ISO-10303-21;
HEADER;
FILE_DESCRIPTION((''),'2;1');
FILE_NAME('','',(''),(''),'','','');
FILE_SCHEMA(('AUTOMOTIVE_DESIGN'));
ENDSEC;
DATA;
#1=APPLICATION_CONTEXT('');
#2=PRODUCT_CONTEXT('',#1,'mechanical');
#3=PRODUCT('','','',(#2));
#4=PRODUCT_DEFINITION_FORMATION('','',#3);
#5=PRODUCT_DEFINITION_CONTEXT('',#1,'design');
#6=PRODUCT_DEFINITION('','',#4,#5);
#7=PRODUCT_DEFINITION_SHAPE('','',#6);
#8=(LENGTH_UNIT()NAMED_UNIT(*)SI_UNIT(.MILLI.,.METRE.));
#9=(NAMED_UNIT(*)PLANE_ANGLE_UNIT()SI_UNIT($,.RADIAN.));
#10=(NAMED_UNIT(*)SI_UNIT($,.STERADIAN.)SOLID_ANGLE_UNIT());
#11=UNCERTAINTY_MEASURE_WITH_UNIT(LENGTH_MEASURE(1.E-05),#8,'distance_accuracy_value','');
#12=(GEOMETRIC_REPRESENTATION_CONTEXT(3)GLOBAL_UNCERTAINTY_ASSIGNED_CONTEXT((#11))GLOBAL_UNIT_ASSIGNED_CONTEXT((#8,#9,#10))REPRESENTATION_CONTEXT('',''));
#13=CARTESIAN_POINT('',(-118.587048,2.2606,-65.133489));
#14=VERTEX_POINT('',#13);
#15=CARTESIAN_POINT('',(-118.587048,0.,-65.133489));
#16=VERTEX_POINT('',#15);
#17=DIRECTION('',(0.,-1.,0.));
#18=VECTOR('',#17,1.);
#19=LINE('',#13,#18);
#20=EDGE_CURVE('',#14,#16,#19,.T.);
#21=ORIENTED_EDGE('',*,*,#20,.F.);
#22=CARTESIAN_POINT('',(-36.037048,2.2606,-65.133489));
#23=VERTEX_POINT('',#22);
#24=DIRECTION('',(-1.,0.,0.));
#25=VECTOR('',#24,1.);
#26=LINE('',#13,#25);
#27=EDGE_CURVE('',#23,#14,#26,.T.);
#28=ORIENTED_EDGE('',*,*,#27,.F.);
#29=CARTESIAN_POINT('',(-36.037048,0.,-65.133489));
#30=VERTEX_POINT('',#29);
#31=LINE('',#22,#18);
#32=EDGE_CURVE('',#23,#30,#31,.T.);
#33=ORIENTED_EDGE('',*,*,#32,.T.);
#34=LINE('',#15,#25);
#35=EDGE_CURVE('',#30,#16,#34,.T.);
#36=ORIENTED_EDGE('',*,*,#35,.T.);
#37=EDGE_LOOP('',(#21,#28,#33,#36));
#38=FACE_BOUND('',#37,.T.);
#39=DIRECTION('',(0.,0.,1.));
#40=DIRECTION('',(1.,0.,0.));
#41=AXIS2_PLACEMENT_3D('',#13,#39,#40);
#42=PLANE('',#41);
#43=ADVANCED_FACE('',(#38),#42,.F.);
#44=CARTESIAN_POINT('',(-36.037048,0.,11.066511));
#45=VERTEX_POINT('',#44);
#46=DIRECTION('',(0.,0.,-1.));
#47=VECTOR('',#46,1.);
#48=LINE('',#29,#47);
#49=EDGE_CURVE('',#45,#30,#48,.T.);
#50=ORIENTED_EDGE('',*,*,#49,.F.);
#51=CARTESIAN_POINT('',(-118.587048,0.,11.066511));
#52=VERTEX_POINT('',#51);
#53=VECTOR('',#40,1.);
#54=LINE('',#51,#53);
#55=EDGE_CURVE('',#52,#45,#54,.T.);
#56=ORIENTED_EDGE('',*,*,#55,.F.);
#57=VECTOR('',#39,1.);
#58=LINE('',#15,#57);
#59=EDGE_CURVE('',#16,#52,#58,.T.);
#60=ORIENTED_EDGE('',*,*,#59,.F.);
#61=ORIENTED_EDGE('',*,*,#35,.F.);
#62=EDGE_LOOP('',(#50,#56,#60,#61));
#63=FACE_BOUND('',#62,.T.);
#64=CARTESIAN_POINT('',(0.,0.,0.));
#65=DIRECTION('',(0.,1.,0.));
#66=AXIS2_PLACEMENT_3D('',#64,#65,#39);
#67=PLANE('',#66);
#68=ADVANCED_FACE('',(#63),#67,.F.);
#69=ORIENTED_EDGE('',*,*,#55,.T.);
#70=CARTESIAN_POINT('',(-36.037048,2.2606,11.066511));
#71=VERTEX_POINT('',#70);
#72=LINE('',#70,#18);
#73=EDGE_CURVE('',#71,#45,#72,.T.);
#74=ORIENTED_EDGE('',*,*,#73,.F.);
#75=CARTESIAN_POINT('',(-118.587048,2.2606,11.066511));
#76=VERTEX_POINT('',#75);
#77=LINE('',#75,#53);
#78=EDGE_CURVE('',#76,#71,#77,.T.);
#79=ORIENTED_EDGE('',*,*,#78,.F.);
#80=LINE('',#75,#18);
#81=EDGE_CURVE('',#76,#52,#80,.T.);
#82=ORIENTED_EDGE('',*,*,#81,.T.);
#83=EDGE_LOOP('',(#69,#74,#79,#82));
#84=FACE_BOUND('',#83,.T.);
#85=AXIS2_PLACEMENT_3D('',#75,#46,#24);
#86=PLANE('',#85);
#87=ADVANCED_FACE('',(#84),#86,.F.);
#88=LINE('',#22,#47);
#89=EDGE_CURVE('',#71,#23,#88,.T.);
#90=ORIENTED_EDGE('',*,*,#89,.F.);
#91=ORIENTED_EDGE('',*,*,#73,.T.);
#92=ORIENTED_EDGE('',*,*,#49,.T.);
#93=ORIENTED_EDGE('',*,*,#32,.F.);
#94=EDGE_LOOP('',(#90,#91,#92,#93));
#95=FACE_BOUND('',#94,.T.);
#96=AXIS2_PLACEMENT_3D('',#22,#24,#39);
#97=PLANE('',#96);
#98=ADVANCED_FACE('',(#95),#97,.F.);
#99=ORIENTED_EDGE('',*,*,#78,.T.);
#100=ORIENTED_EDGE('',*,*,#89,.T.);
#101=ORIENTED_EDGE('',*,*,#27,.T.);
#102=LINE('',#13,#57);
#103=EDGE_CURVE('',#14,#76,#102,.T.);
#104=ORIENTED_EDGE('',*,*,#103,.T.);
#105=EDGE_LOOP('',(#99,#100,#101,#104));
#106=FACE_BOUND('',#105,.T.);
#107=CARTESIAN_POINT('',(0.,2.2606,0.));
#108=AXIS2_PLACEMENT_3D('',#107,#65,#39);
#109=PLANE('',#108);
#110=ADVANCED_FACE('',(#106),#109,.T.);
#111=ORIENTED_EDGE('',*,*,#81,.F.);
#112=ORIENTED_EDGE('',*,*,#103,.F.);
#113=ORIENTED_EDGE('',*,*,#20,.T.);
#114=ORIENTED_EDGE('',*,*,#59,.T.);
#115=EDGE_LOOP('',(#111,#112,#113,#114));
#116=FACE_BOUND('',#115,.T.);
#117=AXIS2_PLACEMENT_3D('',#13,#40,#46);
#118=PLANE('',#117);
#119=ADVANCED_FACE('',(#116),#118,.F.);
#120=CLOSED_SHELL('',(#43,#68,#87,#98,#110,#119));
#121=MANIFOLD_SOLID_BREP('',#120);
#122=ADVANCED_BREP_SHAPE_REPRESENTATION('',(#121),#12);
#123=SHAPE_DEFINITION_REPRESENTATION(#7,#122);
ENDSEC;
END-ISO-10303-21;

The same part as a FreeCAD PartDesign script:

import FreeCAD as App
import Part
import Sketcher
Q = App.Units.Quantity

doc = App.newDocument("Part")
body = doc.addObject("PartDesign::Body", "Body")

# Sketch on XZ plane
sketch1 = body.newObject("Sketcher::SketchObject", "Sketch")
sketch1.AttachmentSupport = (doc.getObject("XZ_Plane"), [""])
sketch1.MapMode = "FlatFace"
sketch1.addGeometry(Part.LineSegment(App.Vector(-118.587048, -65.133489, 0), App.Vector(-118.587048, 11.066511, 0)), False)
sketch1.addGeometry(Part.LineSegment(App.Vector(-118.587048, 11.066511, 0), App.Vector(-36.037048, 11.066511, 0)), False)
sketch1.addGeometry(Part.LineSegment(App.Vector(-36.037048, 11.066511, 0), App.Vector(-36.037048, -65.133489, 0)), False)
sketch1.addGeometry(Part.LineSegment(App.Vector(-36.037048, -65.133489, 0), App.Vector(-118.587048, -65.133489, 0)), False)
sketch1.addConstraint(Sketcher.Constraint("Coincident", 0, 2, 1, 1))
sketch1.addConstraint(Sketcher.Constraint("Coincident", 1, 2, 2, 1))
sketch1.addConstraint(Sketcher.Constraint("Coincident", 2, 2, 3, 1))
sketch1.addConstraint(Sketcher.Constraint("Coincident", 3, 2, 0, 1))
sketch1.addConstraint(Sketcher.Constraint("Vertical", 0))
sketch1.addConstraint(Sketcher.Constraint("Horizontal", 1))
sketch1.addConstraint(Sketcher.Constraint("Vertical", 2))
sketch1.addConstraint(Sketcher.Constraint("Horizontal", 3))
sketch1.addConstraint(Sketcher.Constraint("DistanceY", 0, 1, 0, 2, Q("3 in")))
sketch1.addConstraint(Sketcher.Constraint("DistanceX", 1, 1, 1, 2, Q("3.25 in")))
sketch1.addConstraint(Sketcher.Constraint("DistanceX", 0, 2, -1, 1, 118.587048))
sketch1.addConstraint(Sketcher.Constraint("DistanceY", -1, 1, 0, 2, 11.066511))
pad1 = body.newObject("PartDesign::Pad", "Pad")
pad1.Profile = sketch1
pad1.Length = Q("0.089 in")
pad1.Reversed = True

doc.recompute()
